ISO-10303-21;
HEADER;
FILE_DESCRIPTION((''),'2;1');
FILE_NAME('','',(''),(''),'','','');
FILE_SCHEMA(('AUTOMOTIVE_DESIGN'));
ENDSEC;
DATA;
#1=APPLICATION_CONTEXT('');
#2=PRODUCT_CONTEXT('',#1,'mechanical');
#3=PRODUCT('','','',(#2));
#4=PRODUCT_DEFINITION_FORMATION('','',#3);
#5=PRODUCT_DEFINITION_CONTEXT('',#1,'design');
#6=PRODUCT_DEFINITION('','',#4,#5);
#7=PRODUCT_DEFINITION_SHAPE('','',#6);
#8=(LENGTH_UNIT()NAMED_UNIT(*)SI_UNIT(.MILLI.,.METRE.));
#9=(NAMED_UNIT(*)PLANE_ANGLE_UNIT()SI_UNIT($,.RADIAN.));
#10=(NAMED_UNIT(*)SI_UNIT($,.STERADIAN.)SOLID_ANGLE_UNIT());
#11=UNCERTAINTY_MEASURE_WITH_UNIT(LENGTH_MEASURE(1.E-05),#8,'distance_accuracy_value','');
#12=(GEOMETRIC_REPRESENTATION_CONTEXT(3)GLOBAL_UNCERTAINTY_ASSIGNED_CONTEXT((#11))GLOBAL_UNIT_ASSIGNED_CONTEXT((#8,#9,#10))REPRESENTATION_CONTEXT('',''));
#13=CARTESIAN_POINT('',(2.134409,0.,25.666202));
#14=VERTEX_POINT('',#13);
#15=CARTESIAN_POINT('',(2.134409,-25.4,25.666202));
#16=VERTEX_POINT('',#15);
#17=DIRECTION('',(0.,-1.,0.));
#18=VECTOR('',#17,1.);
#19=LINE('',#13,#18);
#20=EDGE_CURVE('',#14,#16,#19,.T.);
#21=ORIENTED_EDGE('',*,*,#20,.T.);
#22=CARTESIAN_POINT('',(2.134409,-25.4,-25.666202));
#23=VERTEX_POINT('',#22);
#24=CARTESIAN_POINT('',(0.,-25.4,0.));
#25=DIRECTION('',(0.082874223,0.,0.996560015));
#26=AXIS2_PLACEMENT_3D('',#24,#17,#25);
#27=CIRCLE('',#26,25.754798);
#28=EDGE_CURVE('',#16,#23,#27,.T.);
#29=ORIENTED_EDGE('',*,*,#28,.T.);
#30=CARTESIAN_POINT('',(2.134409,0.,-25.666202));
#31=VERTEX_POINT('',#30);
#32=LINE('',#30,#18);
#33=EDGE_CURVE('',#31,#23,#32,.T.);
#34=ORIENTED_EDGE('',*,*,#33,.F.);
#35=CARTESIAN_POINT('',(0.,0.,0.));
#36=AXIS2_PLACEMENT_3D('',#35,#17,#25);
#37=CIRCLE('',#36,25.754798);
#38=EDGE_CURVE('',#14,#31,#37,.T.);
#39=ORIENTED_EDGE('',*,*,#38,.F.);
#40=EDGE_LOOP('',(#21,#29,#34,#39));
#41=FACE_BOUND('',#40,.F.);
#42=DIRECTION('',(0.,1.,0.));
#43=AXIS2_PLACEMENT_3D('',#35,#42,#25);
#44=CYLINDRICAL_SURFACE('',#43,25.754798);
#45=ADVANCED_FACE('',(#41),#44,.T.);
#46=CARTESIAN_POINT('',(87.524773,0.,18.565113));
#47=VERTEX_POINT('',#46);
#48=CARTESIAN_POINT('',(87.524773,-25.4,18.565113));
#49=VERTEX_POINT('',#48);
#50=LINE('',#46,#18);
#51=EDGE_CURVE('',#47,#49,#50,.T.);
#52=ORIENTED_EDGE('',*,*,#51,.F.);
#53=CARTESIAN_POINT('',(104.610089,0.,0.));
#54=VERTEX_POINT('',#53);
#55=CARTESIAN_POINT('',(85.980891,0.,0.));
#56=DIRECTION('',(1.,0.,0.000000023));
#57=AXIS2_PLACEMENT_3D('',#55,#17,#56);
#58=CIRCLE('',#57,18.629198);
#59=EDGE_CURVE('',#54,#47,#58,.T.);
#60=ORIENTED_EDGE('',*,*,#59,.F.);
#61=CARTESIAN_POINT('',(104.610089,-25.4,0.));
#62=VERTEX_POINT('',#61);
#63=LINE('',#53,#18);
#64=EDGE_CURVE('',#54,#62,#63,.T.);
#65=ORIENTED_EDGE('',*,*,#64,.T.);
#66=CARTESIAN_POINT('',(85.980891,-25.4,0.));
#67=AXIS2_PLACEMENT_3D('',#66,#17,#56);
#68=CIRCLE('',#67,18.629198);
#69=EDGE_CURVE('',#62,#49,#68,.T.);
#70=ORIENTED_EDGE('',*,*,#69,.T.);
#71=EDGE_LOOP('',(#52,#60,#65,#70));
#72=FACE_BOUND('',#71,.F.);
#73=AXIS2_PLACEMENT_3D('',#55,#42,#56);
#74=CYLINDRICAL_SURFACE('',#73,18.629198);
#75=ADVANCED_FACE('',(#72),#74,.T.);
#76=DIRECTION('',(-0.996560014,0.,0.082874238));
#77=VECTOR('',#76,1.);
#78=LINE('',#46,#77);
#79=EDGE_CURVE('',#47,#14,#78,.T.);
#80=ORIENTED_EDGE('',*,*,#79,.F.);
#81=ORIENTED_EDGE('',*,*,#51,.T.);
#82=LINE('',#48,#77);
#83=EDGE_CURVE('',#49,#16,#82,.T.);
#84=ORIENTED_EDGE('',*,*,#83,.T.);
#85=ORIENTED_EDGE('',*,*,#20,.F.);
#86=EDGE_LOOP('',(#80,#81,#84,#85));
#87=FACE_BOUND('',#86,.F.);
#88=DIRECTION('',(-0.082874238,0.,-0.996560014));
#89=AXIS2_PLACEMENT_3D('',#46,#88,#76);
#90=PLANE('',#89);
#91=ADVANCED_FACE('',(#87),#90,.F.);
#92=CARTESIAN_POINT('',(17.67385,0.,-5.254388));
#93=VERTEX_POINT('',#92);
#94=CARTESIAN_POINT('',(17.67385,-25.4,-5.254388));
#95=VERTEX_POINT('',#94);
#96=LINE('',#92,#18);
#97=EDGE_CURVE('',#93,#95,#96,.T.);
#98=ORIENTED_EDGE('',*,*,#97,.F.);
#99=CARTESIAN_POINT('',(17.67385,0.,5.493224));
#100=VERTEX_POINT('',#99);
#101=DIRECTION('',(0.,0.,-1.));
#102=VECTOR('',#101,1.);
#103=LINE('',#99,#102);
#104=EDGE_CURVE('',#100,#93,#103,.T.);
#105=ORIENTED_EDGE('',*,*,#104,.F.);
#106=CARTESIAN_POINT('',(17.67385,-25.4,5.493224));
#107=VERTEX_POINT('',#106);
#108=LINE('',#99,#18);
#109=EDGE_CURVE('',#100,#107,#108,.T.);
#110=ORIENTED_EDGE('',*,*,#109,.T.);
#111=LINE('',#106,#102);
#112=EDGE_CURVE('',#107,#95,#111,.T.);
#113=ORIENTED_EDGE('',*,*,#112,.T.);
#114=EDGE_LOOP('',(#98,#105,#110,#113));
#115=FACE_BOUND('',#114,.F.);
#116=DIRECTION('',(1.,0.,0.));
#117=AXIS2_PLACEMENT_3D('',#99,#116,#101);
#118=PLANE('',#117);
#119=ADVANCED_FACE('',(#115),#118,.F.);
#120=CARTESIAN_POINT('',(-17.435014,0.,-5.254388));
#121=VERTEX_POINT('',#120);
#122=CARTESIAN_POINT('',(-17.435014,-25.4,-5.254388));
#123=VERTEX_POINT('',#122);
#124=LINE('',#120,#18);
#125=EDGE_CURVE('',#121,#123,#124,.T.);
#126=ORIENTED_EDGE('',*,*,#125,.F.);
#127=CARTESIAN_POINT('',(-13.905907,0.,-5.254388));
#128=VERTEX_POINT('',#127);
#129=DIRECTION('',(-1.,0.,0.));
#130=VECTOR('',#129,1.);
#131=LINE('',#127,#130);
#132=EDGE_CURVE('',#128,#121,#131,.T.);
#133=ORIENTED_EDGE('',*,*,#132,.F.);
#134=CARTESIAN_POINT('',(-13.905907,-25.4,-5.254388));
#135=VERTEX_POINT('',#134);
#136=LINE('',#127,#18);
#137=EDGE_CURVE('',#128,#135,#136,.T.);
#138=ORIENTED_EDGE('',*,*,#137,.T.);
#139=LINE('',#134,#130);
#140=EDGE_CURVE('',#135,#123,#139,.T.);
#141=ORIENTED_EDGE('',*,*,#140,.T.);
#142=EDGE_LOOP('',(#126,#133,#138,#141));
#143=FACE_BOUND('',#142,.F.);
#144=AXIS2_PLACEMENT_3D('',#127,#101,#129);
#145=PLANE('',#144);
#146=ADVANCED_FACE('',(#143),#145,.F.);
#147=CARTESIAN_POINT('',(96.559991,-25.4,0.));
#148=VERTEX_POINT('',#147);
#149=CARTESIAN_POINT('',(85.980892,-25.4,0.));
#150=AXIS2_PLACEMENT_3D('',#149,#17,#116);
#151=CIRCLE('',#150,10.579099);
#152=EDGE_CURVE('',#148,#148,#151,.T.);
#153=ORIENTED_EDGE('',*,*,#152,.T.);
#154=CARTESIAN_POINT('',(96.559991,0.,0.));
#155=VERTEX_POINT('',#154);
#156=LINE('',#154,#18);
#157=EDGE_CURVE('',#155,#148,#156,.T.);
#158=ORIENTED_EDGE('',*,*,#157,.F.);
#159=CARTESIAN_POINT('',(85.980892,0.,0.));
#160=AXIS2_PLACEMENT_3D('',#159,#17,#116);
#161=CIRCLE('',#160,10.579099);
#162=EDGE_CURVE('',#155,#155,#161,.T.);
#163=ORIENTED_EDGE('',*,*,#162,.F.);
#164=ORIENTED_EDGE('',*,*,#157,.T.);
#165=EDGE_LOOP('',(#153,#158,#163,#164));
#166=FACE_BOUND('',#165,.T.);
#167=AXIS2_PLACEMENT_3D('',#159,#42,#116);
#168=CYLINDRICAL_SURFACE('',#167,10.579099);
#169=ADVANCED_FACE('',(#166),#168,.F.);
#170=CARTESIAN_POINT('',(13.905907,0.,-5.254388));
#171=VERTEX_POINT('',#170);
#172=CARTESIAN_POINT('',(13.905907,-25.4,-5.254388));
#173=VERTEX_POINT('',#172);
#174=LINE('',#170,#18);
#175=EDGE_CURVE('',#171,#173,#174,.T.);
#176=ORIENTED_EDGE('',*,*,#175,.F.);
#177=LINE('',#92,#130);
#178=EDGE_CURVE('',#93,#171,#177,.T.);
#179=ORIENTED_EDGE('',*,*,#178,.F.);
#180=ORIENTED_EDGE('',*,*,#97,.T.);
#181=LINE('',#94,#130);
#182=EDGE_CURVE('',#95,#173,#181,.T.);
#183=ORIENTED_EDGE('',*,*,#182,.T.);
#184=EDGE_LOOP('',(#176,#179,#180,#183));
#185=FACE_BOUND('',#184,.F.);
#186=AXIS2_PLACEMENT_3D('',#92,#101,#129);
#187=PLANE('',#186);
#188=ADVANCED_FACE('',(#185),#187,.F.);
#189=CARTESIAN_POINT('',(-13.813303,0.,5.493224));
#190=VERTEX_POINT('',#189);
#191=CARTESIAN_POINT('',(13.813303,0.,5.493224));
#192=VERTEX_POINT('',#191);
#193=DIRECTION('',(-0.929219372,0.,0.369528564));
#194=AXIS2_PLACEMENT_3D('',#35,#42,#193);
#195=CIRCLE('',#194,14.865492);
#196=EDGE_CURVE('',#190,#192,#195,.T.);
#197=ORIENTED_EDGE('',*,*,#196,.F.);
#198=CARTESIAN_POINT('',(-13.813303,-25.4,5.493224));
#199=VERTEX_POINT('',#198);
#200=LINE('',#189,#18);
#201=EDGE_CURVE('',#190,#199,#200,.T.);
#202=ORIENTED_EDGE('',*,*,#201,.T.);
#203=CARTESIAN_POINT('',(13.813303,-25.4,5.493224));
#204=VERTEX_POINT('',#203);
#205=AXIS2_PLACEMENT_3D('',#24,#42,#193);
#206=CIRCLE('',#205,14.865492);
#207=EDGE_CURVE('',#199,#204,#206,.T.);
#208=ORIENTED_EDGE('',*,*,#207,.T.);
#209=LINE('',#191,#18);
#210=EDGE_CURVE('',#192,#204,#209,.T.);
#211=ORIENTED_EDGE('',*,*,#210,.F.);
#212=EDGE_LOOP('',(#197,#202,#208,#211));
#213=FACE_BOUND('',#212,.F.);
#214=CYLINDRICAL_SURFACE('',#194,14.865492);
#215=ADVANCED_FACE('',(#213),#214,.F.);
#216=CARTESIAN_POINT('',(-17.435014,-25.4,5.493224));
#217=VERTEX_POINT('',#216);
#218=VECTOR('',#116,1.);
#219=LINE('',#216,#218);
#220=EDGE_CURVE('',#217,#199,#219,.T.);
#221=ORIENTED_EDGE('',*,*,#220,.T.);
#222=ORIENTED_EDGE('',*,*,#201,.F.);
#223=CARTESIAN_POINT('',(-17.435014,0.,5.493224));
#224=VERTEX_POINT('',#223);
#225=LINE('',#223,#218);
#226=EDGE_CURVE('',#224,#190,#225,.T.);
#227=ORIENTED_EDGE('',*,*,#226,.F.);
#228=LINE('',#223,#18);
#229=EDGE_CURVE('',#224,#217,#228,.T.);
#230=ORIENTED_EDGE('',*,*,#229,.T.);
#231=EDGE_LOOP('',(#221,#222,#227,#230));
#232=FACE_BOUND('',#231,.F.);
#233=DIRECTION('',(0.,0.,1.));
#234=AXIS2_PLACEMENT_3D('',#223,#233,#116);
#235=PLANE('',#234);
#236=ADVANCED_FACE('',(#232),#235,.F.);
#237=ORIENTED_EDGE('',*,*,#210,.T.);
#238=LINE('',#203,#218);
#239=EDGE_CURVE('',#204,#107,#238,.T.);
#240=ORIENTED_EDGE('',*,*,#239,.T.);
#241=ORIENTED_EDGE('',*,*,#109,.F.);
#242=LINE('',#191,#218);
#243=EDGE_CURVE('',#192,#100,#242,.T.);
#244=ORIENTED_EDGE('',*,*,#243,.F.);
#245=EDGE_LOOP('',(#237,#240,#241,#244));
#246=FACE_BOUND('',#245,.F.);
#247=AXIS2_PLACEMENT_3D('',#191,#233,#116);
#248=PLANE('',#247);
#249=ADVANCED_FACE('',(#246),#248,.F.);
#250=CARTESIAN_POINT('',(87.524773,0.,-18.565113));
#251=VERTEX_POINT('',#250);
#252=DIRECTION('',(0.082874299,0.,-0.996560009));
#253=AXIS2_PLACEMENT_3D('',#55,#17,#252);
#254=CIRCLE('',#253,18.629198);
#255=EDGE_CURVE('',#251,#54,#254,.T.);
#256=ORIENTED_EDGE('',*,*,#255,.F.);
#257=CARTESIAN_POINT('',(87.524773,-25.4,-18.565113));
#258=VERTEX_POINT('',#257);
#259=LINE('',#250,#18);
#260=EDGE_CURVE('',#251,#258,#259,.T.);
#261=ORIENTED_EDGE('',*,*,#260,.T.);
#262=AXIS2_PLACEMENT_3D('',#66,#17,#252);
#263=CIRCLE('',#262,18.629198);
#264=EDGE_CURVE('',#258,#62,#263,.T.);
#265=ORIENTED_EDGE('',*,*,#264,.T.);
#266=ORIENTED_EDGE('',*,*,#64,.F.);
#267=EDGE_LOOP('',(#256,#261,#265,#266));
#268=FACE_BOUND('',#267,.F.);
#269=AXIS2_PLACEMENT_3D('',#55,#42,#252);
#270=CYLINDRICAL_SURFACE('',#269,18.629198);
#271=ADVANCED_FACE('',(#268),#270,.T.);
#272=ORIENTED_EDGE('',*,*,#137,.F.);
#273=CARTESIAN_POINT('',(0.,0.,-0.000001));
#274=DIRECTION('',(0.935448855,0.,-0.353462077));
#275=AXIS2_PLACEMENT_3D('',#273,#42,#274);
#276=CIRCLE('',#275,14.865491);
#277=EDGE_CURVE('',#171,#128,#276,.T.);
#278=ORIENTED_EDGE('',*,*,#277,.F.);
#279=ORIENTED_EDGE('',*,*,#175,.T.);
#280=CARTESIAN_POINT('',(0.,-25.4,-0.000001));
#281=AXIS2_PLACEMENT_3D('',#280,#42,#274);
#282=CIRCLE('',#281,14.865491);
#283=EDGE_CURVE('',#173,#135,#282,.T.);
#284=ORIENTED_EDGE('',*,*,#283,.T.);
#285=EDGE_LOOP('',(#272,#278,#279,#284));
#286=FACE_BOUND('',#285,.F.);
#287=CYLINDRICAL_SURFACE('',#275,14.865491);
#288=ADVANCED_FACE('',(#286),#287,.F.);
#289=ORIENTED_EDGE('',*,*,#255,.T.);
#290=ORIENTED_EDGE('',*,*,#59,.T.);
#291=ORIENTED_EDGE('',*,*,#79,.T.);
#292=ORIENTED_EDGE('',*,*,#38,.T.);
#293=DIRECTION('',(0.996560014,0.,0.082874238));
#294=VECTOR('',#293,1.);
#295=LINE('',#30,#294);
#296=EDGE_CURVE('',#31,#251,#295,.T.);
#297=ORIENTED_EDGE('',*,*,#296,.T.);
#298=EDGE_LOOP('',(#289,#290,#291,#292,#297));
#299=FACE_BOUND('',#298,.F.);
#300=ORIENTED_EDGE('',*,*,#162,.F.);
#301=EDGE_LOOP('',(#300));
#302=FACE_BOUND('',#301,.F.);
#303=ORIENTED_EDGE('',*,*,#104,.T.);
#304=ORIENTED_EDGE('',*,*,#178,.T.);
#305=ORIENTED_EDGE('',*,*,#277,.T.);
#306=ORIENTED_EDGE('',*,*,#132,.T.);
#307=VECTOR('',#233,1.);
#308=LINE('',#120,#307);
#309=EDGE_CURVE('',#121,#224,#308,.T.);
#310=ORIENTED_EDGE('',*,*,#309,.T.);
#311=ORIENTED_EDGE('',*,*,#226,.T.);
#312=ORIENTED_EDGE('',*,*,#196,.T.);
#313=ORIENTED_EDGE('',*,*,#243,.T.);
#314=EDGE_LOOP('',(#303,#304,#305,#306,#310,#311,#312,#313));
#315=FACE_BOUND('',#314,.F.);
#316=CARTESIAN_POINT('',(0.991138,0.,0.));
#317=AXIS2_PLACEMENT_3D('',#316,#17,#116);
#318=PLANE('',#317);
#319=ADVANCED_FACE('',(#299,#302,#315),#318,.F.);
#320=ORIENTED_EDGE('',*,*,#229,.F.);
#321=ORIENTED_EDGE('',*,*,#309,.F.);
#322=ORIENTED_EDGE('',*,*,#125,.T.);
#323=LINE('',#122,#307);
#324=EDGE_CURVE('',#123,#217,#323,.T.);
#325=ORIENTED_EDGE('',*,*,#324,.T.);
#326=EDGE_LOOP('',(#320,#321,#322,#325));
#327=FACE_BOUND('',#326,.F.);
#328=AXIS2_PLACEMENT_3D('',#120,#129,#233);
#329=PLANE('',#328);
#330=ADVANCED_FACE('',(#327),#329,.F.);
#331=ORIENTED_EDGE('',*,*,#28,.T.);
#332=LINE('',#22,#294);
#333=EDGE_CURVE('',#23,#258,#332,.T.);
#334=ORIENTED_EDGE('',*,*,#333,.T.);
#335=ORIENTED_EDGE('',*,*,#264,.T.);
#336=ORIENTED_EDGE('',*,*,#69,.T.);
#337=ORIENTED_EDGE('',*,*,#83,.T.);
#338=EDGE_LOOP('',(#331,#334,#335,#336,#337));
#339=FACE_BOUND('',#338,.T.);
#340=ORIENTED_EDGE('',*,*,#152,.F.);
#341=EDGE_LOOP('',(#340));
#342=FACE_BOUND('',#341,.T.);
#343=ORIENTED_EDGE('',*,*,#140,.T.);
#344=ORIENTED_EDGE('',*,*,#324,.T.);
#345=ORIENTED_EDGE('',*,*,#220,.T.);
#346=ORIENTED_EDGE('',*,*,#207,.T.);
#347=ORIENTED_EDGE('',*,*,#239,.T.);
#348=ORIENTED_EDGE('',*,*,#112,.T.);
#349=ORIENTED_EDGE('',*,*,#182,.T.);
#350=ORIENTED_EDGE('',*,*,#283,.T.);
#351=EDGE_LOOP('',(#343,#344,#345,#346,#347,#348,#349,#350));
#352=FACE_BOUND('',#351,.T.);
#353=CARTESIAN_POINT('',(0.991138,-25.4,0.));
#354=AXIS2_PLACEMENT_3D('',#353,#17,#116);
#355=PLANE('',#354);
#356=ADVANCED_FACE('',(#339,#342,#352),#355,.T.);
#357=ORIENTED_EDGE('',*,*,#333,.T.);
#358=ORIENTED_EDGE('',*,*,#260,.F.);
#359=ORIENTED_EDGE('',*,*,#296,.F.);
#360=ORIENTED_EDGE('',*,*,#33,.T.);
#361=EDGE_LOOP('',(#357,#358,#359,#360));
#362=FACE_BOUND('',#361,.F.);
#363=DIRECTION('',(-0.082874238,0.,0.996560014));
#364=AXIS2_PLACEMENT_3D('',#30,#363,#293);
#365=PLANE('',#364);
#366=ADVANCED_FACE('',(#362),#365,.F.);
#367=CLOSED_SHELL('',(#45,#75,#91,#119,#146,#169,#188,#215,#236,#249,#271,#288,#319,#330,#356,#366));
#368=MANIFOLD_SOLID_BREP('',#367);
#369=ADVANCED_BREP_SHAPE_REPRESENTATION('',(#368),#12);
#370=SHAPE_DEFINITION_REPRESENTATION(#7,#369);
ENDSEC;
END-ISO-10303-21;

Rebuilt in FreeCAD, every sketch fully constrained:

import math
import FreeCAD as App
import Part
import Sketcher
from FreeCAD import Vector
Q = App.Units.Quantity

doc = App.newDocument("Part")
body = doc.addObject("PartDesign::Body", "Body")

# Sketch on XZ plane
sketch1 = doc.addObject("Sketcher::SketchObject", "Sketch")
body.addObject(sketch1)
sketch1.AttachmentSupport = (doc.XZ_Plane, [""])
sketch1.MapMode = "FlatFace"
sketch1.addGeometry(Part.ArcOfCircle(Part.Circle(Vector(0, 0, 0), Vector(0, 0, 1), 25.754798), math.radians(85.246205), math.radians(274.753795)), False)
sketch1.addGeometry(Part.LineSegment(Vector(2.134409, -25.666202, 0), Vector(87.524773, -18.565113, 0)), False)
sketch1.addGeometry(Part.ArcOfCircle(Part.Circle(Vector(85.980891, 0, 0), Vector(0, 0, 1), 18.629198), math.radians(-85.2462), math.radians(-0.000001)), False)
sketch1.addGeometry(Part.ArcOfCircle(Part.Circle(Vector(85.980891, 0, 0), Vector(0, 0, 1), 18.629198), math.radians(0.000001), math.radians(85.2462)), False)
sketch1.addGeometry(Part.LineSegment(Vector(87.524773, 18.565113, 0), Vector(2.134409, 25.666202, 0)), False)
sketch1.addGeometry(Part.LineSegment(Vector(-17.435014, 5.493224, 0), Vector(-13.813303, 5.493224, 0)), False)
sketch1.addGeometry(Part.ArcOfCircle(Part.Circle(Vector(0, 0, 0), Vector(0, 0, 1), 14.865492), math.radians(21.686546), math.radians(158.313454)), False)
sketch1.addGeometry(Part.LineSegment(Vector(13.813303, 5.493224, 0), Vector(17.67385, 5.493224, 0)), False)
sketch1.addGeometry(Part.LineSegment(Vector(17.67385, 5.493224, 0), Vector(17.67385, -5.254388, 0)), False)
sketch1.addGeometry(Part.LineSegment(Vector(17.67385, -5.254388, 0), Vector(13.905907, -5.254388, 0)), False)
sketch1.addGeometry(Part.ArcOfCircle(Part.Circle(Vector(0, -0.000001, 0), Vector(0, 0, 1), 14.865491), math.radians(-159.300782), math.radians(-20.699218)), False)
sketch1.addGeometry(Part.LineSegment(Vector(-13.905907, -5.254388, 0), Vector(-17.435014, -5.254388, 0)), False)
sketch1.addGeometry(Part.LineSegment(Vector(-17.435014, -5.254388, 0), Vector(-17.435014, 5.493224, 0)), False)
sketch1.addGeometry(Part.Circle(Vector(85.980892, 0, 0), Vector(0, 0, 1), 10.579099), False)
sketch1.addConstraint(Sketcher.Constraint("Tangent", 0, 2, 1, 1))
sketch1.addConstraint(Sketcher.Constraint("Tangent", 1, 2, 2, 1))
sketch1.addConstraint(Sketcher.Constraint("Tangent", 2, 2, 3, 1))
sketch1.addConstraint(Sketcher.Constraint("Tangent", 3, 2, 4, 1))
sketch1.addConstraint(Sketcher.Constraint("Tangent", 4, 2, 0, 1))
sketch1.addConstraint(Sketcher.Constraint("Coincident", 5, 2, 6, 2))
sketch1.addConstraint(Sketcher.Constraint("Coincident", 6, 1, 7, 1))
sketch1.addConstraint(Sketcher.Constraint("Coincident", 7, 2, 8, 1))
sketch1.addConstraint(Sketcher.Constraint("Coincident", 8, 2, 9, 1))
sketch1.addConstraint(Sketcher.Constraint("Coincident", 9, 2, 10, 2))
sketch1.addConstraint(Sketcher.Constraint("Coincident", 10, 1, 11, 1))
sketch1.addConstraint(Sketcher.Constraint("Coincident", 11, 2, 12, 1))
sketch1.addConstraint(Sketcher.Constraint("Coincident", 12, 2, 5, 1))
sketch1.addConstraint(Sketcher.Constraint("Horizontal", 5))
sketch1.addConstraint(Sketcher.Constraint("Horizontal", 7))
sketch1.addConstraint(Sketcher.Constraint("Vertical", 8))
sketch1.addConstraint(Sketcher.Constraint("Horizontal", 9))
sketch1.addConstraint(Sketcher.Constraint("Horizontal", 11))
sketch1.addConstraint(Sketcher.Constraint("Vertical", 12))
sketch1.addConstraint(Sketcher.Constraint("Coincident", 0, 3, -1, 1))
sketch1.addConstraint(Sketcher.Constraint("Coincident", 6, 3, -1, 1))
sketch1.addConstraint(Sketcher.Constraint("Coincident", 10, 3, -1, 1))
sketch1.addConstraint(Sketcher.Constraint("Coincident", 13, 3, 2, 3))
sketch1.addConstraint(Sketcher.Constraint("Equal", 2, 3))
sketch1.addConstraint(Sketcher.Constraint("Equal", 6, 10))
sketch1.addConstraint(Sketcher.Constraint("PointOnObject", 2, 3, -1))
sketch1.addConstraint(Sketcher.Constraint("PointOnObject", 2, 2, -1))
sketch1.addConstraint(Sketcher.Constraint("Horizontal", 5, 2, 6, 1))
sketch1.addConstraint(Sketcher.Constraint("Horizontal", 9, 2, 10, 1))
sketch1.addConstraint(Sketcher.Constraint("Diameter", 13, Q("0.8329999 in")))
sketch1.addConstraint(Sketcher.Constraint("Radius", 0, 25.754798))
sketch1.addConstraint(Sketcher.Constraint("Radius", 6, 14.865492))
sketch1.addConstraint(Sketcher.Constraint("Radius", 2, 18.629198))
sketch1.addConstraint(Sketcher.Constraint("DistanceX", 5, 1, 5, 2, 3.621711))
sketch1.addConstraint(Sketcher.Constraint("Distance", 1, 85.68512))
sketch1.addConstraint(Sketcher.Constraint("DistanceX", 7, 1, 7, 2, 3.860547))
sketch1.addConstraint(Sketcher.Constraint("DistanceX", 9, 2, 9, 1, 3.767943))
sketch1.addConstraint(Sketcher.Constraint("DistanceY", 8, 2, 8, 1, 10.747612))
pad1 = doc.addObject("PartDesign::Pad", "Pad")
body.addObject(pad1)
pad1.Profile = sketch1
pad1.Length = Q("1 in")

doc.recompute()
